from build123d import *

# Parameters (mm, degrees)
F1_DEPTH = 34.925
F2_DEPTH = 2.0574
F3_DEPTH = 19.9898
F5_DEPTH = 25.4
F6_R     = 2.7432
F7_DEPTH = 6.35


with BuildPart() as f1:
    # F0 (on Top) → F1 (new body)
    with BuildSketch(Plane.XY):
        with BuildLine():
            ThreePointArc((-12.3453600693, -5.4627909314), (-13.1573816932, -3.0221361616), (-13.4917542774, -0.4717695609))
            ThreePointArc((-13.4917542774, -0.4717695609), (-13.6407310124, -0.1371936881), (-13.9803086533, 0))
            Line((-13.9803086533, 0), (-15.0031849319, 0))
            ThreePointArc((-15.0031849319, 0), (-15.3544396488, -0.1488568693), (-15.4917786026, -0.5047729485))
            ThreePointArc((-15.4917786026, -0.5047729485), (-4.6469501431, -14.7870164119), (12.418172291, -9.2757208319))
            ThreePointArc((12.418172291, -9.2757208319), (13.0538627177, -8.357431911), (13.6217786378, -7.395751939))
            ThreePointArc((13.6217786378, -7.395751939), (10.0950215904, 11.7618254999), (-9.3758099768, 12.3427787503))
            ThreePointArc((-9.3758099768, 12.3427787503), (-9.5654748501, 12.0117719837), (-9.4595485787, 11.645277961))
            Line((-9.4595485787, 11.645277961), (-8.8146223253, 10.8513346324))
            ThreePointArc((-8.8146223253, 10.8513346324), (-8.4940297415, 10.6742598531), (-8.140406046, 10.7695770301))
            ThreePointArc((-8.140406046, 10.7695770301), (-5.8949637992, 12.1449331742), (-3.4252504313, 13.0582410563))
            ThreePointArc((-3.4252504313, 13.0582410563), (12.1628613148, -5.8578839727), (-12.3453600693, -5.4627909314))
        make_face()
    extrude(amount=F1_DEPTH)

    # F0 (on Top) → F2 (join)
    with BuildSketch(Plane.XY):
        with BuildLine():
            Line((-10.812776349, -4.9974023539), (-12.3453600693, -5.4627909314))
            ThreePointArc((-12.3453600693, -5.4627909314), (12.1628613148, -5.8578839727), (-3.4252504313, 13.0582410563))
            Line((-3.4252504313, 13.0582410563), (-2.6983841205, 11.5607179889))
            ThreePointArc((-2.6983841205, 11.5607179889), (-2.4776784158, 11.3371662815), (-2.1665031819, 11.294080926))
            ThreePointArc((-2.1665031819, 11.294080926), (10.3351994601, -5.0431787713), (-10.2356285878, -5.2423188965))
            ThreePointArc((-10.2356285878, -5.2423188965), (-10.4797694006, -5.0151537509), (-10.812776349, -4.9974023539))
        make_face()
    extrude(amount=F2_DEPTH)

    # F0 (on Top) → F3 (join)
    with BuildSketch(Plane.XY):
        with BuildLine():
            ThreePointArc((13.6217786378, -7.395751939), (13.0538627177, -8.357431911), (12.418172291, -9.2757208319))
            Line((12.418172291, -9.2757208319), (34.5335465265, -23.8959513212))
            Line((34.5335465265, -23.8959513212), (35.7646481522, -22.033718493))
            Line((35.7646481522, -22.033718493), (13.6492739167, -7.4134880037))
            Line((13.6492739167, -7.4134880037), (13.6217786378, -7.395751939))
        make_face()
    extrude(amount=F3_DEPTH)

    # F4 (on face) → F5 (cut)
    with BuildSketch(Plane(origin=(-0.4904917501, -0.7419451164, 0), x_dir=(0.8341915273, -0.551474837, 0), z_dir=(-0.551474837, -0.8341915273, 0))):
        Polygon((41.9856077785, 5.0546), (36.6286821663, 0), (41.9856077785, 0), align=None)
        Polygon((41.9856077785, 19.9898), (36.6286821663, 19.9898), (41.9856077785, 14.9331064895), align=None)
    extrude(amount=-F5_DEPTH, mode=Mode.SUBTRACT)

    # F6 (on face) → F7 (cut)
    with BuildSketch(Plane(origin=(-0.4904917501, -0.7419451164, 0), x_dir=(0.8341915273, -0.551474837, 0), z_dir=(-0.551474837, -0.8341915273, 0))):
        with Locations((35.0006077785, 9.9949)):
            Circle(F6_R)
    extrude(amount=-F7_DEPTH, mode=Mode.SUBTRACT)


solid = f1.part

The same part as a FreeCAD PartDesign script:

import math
import FreeCAD as App
import Part
import Sketcher
from FreeCAD import Vector
Q = App.Units.Quantity

doc = App.newDocument("Part")
body = doc.addObject("PartDesign::Body", "Body")

sketch1 = doc.addObject("Sketcher::SketchObject", "Sketch")
body.addObject(sketch1)
sketch1.AttachmentSupport = (doc.XY_Plane, [""])
sketch1.MapMode = "FlatFace"
sketch1.addGeometry(Part.ArcOfCircle(Part.Circle(Vector(0, 0, 0), Vector(0, 0, 1), 13.5), math.radians(-178), math.radians(-156)), False)
sketch1.addGeometry(Part.ArcOfCircle(Part.Circle(Vector(-13.98, -0.49, 0), Vector(0, 0, 1), 0.49), math.radians(2), math.radians(90)), False)
sketch1.addGeometry(Part.LineSegment(Vector(-13.98, 0, 0), Vector(-15, 0, 0)), False)
sketch1.addGeometry(Part.ArcOfCircle(Part.Circle(Vector(-15, -0.49, 0), Vector(0, 0, 1), 0.49), math.radians(90), math.radians(182)), False)
sketch1.addGeometry(Part.ArcOfCircle(Part.Circle(Vector(0, 0, 0), Vector(0, 0, 1), 15.5), math.radians(-178), math.radians(-37)), False)
sketch1.addGeometry(Part.ArcOfCircle(Part.Circle(Vector(0, 0, 0), Vector(0, 0, 1), 15.5), math.radians(-36.76), math.radians(-28.5)), False)
sketch1.addGeometry(Part.ArcOfCircle(Part.Circle(Vector(0, 0, 0), Vector(0, 0, 1), 15.5), math.radians(-28), math.radians(127)), False)
sketch1.addGeometry(Part.ArcOfCircle(Part.Circle(Vector(-9.08, 11.95, 0), Vector(0, 0, 1), 0.49), math.radians(127), math.radians(219)), False)
sketch1.addGeometry(Part.LineSegment(Vector(-9.46, 11.65, 0), Vector(-8.81, 10.85, 0)), False)
sketch1.addGeometry(Part.ArcOfCircle(Part.Circle(Vector(-8.44, 11.16, 0), Vector(0, 0, 1), 0.49), math.radians(-141), math.radians(-53)), False)
sketch1.addGeometry(Part.ArcOfCircle(Part.Circle(Vector(0, 0, 0), Vector(0, 0, 1), 13.5), math.radians(105), math.radians(127)), False)
sketch1.addGeometry(Part.ArcOfCircle(Part.Circle(Vector(0, 0, 0), Vector(0, 0, 1), 13.5), math.radians(-156), math.radians(105)), False)
sketch1.addConstraint(Sketcher.Constraint("Tangent", 0, 1, 1, 1))
sketch1.addConstraint(Sketcher.Constraint("Tangent", 1, 2, 2, 1))
sketch1.addConstraint(Sketcher.Constraint("Tangent", 2, 2, 3, 1))
sketch1.addConstraint(Sketcher.Constraint("Tangent", 3, 2, 4, 1))
sketch1.addConstraint(Sketcher.Constraint("Tangent", 4, 2, 5, 1))
sketch1.addConstraint(Sketcher.Constraint("Tangent", 5, 2, 6, 1))
sketch1.addConstraint(Sketcher.Constraint("Tangent", 6, 2, 7, 1))
sketch1.addConstraint(Sketcher.Constraint("Tangent", 7, 2, 8, 1))
sketch1.addConstraint(Sketcher.Constraint("Tangent", 8, 2, 9, 1))
sketch1.addConstraint(Sketcher.Constraint("Tangent", 9, 2, 10, 2))
sketch1.addConstraint(Sketcher.Constraint("Tangent", 10, 1, 11, 2))
sketch1.addConstraint(Sketcher.Constraint("Tangent", 11, 1, 0, 2))
sketch1.addConstraint(Sketcher.Constraint("Horizontal", 2))
sketch1.addConstraint(Sketcher.Constraint("Coincident", 0, 3, -1, 1))
sketch1.addConstraint(Sketcher.Constraint("Coincident", 4, 3, -1, 1))
sketch1.addConstraint(Sketcher.Constraint("Coincident", 6, 3, -1, 1))
sketch1.addConstraint(Sketcher.Constraint("Coincident", 10, 3, -1, 1))
sketch1.addConstraint(Sketcher.Constraint("Equal", 1, 3))
sketch1.addConstraint(Sketcher.Constraint("Equal", 3, 7))
sketch1.addConstraint(Sketcher.Constraint("Equal", 7, 9))
sketch1.addConstraint(Sketcher.Constraint("PointOnObject", 1, 2, -1))
sketch1.addConstraint(Sketcher.Constraint("Radius", 0, Q("13.5 mm")))
sketch1.addConstraint(Sketcher.Constraint("Radius", 4, Q("15.5 mm")))
sketch1.addConstraint(Sketcher.Constraint("Radius", 1, Q("0.488853 mm")))
sketch1.addConstraint(Sketcher.Constraint("DistanceY", -1, 1, 7, 3, Q("11.953501 mm")))
sketch1.addConstraint(Sketcher.Constraint("DistanceY", 7, 2, 6, 2, Q("0.697501 mm")))
sketch1.addConstraint(Sketcher.Constraint("DistanceY", 4, 2, -1, 1, Q("9.275721 mm")))
sketch1.addConstraint(Sketcher.Constraint("DistanceX", -1, 1, 5, 2, Q("13.621779 mm")))
sketch1.addConstraint(Sketcher.Constraint("DistanceX", 10, 1, -1, 1, Q("3.42525 mm")))
sketch1.addConstraint(Sketcher.Constraint("DistanceX", 11, 1, -1, 1, Q("12.34536 mm")))
pad1 = doc.addObject("PartDesign::Pad", "Pad")
body.addObject(pad1)
pad1.Profile = sketch1
pad1.Length = Q("1.375 in")

sketch2 = doc.addObject("Sketcher::SketchObject", "Sketch001")
body.addObject(sketch2)
sketch2.AttachmentSupport = (doc.XY_Plane, [""])
sketch2.MapMode = "FlatFace"
sketch2.addGeometry(Part.LineSegment(Vector(-10.81, -5, 0), Vector(-12.35, -5.46, 0)), False)
sketch2.addGeometry(Part.ArcOfCircle(Part.Circle(Vector(0, 0, 0), Vector(0, 0, 1), 13.5), math.radians(-156), math.radians(105)), False)
sketch2.addGeometry(Part.LineSegment(Vector(-3.43, 13.06, 0), Vector(-2.7, 11.56, 0)), False)
sketch2.addGeometry(Part.ArcOfCircle(Part.Circle(Vector(-2.26, 11.77, 0), Vector(0, 0, 1), 0.49), math.radians(-154), math.radians(-79)), False)
sketch2.addGeometry(Part.ArcOfCircle(Part.Circle(Vector(0, 0, 0), Vector(0, 0, 1), 11.5), math.radians(-153), math.radians(101)), False)
sketch2.addGeometry(Part.ArcOfCircle(Part.Circle(Vector(-10.67, -5.47, 0), Vector(0, 0, 1), 0.49), math.radians(27), math.radians(107)), False)
sketch2.addConstraint(Sketcher.Constraint("Coincident", 0, 2, 1, 1))
sketch2.addConstraint(Sketcher.Constraint("Coincident", 1, 2, 2, 1))
sketch2.addConstraint(Sketcher.Constraint("Tangent", 2, 2, 3, 1))
sketch2.addConstraint(Sketcher.Constraint("Tangent", 3, 2, 4, 2))
sketch2.addConstraint(Sketcher.Constraint("Tangent", 4, 1, 5, 1))
sketch2.addConstraint(Sketcher.Constraint("Tangent", 5, 2, 0, 1))
sketch2.addConstraint(Sketcher.Constraint("Coincident", 1, 3, -1, 1))
sketch2.addConstraint(Sketcher.Constraint("Coincident", 4, 3, -1, 1))
sketch2.addConstraint(Sketcher.Constraint("Equal", 3, 5))
sketch2.addConstraint(Sketcher.Constraint("Radius", 1, Q("13.5 mm")))
sketch2.addConstraint(Sketcher.Constraint("Radius", 4, Q("11.5 mm")))
sketch2.addConstraint(Sketcher.Constraint("DistanceX", 5, 2, -1, 1, Q("0.4256999 in")))
sketch2.addConstraint(Sketcher.Constraint("Radius", 3, Q("0.488853 mm")))
sketch2.addConstraint(Sketcher.Constraint("DistanceX", 3, 3, -1, 1, Q("2.258599 mm")))
sketch2.addConstraint(Sketcher.Constraint("DistanceY", 4, 1, 3, 2, Q("16.5364 mm")))
sketch2.addConstraint(Sketcher.Constraint("DistanceX", 1, 2, -1, 1, Q("3.42525 mm")))
pad2 = doc.addObject("PartDesign::Pad", "Pad001")
body.addObject(pad2)
pad2.Profile = sketch2
pad2.Length = Q("0.081 in")

sketch3 = doc.addObject("Sketcher::SketchObject", "Sketch002")
body.addObject(sketch3)
sketch3.AttachmentSupport = (doc.XY_Plane, [""])
sketch3.MapMode = "FlatFace"
sketch3.addGeometry(Part.ArcOfCircle(Part.Circle(Vector(0, 0, 0), Vector(0, 0, 1), 15.5), math.radians(-36.76), math.radians(-28.5)), False)
sketch3.addGeometry(Part.LineSegment(Vector(12.418, -9.276, 0), Vector(34.534, -23.896, 0)), False)
sketch3.addGeometry(Part.LineSegment(Vector(34.534, -23.896, 0), Vector(35.765, -22.034, 0)), False)
sketch3.addGeometry(Part.LineSegment(Vector(35.765, -22.034, 0), Vector(13.649, -7.413, 0)), False)
sketch3.addGeometry(Part.LineSegment(Vector(13.649, -7.413, 0), Vector(13.622, -7.396, 0)), False)
sketch3.addConstraint(Sketcher.Constraint("Coincident", 0, 1, 1, 1))
sketch3.addConstraint(Sketcher.Constraint("Coincident", 1, 2, 2, 1))
sketch3.addConstraint(Sketcher.Constraint("Coincident", 2, 2, 3, 1))
sketch3.addConstraint(Sketcher.Constraint("Coincident", 3, 2, 4, 1))
sketch3.addConstraint(Sketcher.Constraint("Coincident", 4, 2, 0, 2))
sketch3.addConstraint(Sketcher.Constraint("Coincident", 0, 3, -1, 1))
sketch3.addConstraint(Sketcher.Constraint("Perpendicular", 1, 2))
sketch3.addConstraint(Sketcher.Constraint("Perpendicular", 2, 3))
sketch3.addConstraint(Sketcher.Constraint("Equal", 1, 3))
sketch3.addConstraint(Sketcher.Constraint("Radius", 0, Q("15.5 mm")))
sketch3.addConstraint(Sketcher.Constraint("DistanceX", 1, 2, 2, 2, Q("1.231102 mm")))
sketch3.addConstraint(Sketcher.Constraint("DistanceY", 1, 2, 4, 2, Q("16.500199 mm")))
sketch3.addConstraint(Sketcher.Constraint("Distance", 2, Q("2.23238 mm")))
sketch3.addConstraint(Sketcher.Constraint("Distance", 4, Q("0.032719 mm")))
sketch3.addConstraint(Sketcher.Constraint("DistanceY", 0, 1, -1, 1, Q("9.275721 mm")))
pad3 = doc.addObject("PartDesign::Pad", "Pad002")
body.addObject(pad3)
pad3.Profile = sketch3
pad3.Length = Q("0.787 in")

sketch4 = doc.addObject("Sketcher::SketchObject", "Sketch003")
body.addObject(sketch4)
sketch4.Placement = App.Placement(Vector(-0.490492, -0.741945, 0), App.Rotation(Vector(0.834191527, -0.551474837, 0), Vector(0, 0, 1), Vector(-0.551474837, -0.834191527, 0), "ZXY"))
sketch4.addGeometry(Part.LineSegment(Vector(42, 5, 0), Vector(37, 0, 0)), False)
sketch4.addGeometry(Part.LineSegment(Vector(37, 0, 0), Vector(42, 0, 0)), False)
sketch4.addGeometry(Part.LineSegment(Vector(42, 0, 0), Vector(42, 5, 0)), False)
sketch4.addGeometry(Part.LineSegment(Vector(42, 20, 0), Vector(37, 20, 0)), False)
sketch4.addGeometry(Part.LineSegment(Vector(37, 20, 0), Vector(42, 15, 0)), False)
sketch4.addGeometry(Part.LineSegment(Vector(42, 15, 0), Vector(42, 20, 0)), False)
sketch4.addConstraint(Sketcher.Constraint("Coincident", 0, 2, 1, 1))
sketch4.addConstraint(Sketcher.Constraint("Coincident", 1, 2, 2, 1))
sketch4.addConstraint(Sketcher.Constraint("Coincident", 2, 2, 0, 1))
sketch4.addConstraint(Sketcher.Constraint("Coincident", 3, 2, 4, 1))
sketch4.addConstraint(Sketcher.Constraint("Coincident", 4, 2, 5, 1))
sketch4.addConstraint(Sketcher.Constraint("Coincident", 5, 2, 3, 1))
sketch4.addConstraint(Sketcher.Constraint("Horizontal", 1))
sketch4.addConstraint(Sketcher.Constraint("Vertical", 2))
sketch4.addConstraint(Sketcher.Constraint("Horizontal", 3))
sketch4.addConstraint(Sketcher.Constraint("Vertical", 5))
sketch4.addConstraint(Sketcher.Constraint("PointOnObject", 0, 2, -1))
sketch4.addConstraint(Sketcher.Constraint("Vertical", 0, 2, 3, 2))
sketch4.addConstraint(Sketcher.Constraint("Vertical", 2, 2, 4, 2))
sketch4.addConstraint(Sketcher.Constraint("DistanceY", 2, 1, 2, 2, Q("0.199 in")))
sketch4.addConstraint(Sketcher.Constraint("DistanceY", -1, 1, 3, 2, Q("0.787 in")))
sketch4.addConstraint(Sketcher.Constraint("Distance", 4, Q("7.3666 mm")))
sketch4.addConstraint(Sketcher.Constraint("DistanceX", 1, 1, 1, 2, Q("5.356926 mm")))
sketch4.addConstraint(Sketcher.Constraint("DistanceX", -1, 1, 0, 2, Q("36.628682 mm")))
pocket1 = doc.addObject("PartDesign::Pocket", "Pocket")
body.addObject(pocket1)
pocket1.Profile = sketch4
pocket1.Length = Q("1 in")

sketch5 = doc.addObject("Sketcher::SketchObject", "Sketch004")
body.addObject(sketch5)
sketch5.Placement = App.Placement(Vector(-0.490492, -0.741945, 0), App.Rotation(Vector(0.834191527, -0.551474837, 0), Vector(0, 0, 1), Vector(-0.551474837, -0.834191527, 0), "ZXY"))
sketch5.addGeometry(Part.Circle(Vector(35, 10, 0), Vector(0, 0, 1), 2.7), False)
sketch5.addConstraint(Sketcher.Constraint("Diameter", 0, Q("0.216 in")))
sketch5.addConstraint(Sketcher.Constraint("DistanceY", -1, 1, 0, 3, Q("0.3935 in")))
sketch5.addConstraint(Sketcher.Constraint("DistanceX", -1, 1, 0, 3, Q("35.000608 mm")))
pocket2 = doc.addObject("PartDesign::Pocket", "Pocket001")
body.addObject(pocket2)
pocket2.Profile = sketch5
pocket2.Length = Q("0.25 in")

doc.recompute()
